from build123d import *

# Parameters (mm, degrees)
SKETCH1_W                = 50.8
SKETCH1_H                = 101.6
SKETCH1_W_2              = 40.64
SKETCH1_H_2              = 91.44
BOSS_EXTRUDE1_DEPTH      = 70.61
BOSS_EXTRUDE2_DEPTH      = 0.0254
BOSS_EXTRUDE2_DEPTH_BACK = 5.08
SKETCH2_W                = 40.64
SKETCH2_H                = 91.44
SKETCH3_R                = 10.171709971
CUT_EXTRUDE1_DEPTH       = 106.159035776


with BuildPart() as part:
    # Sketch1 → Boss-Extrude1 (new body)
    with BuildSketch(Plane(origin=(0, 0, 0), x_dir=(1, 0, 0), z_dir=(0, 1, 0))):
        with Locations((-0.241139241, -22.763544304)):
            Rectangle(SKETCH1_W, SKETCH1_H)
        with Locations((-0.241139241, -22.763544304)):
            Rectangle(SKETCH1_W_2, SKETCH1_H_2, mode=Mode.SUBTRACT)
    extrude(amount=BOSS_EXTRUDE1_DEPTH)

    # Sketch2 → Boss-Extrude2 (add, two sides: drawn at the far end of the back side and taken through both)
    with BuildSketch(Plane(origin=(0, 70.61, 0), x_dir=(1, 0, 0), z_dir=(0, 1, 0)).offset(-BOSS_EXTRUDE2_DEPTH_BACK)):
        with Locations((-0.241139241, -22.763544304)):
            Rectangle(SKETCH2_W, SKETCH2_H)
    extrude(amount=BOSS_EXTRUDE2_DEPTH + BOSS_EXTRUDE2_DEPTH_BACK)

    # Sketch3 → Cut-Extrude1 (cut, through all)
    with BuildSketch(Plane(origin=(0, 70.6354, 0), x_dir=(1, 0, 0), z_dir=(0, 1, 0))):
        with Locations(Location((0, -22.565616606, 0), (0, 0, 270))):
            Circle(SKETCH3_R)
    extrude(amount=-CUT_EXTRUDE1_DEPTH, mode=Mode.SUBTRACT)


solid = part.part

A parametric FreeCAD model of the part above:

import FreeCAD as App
import Part
import Sketcher

V = App.Vector
Q = App.Units.Quantity


def add_polygon(sketch, points):
    """Adds a closed chain of lines whose ends are joined by coincident constraints."""
    first, n = sketch.GeometryCount, len(points)
    for a, b in zip(points, points[1:] + points[:1]):
        sketch.addGeometry(Part.LineSegment(App.Vector(*a, 0), App.Vector(*b, 0)), False)
    for i in range(n):
        sketch.addConstraint(Sketcher.Constraint("Coincident", first + i, 2, first + (i + 1) % n, 1))

doc = App.newDocument("Part")
body = doc.addObject("PartDesign::Body", "Body")

# Sketch on XZ plane
sketch1 = doc.addObject("Sketcher::SketchObject", "Sketch")
body.addObject(sketch1)
sketch1.AttachmentSupport = (doc.XZ_Plane, [""])
sketch1.MapMode = "FlatFace"
add_polygon(sketch1, [(-26, -28), (-26, 74), (25, 74), (25, -28)])  # lines 0-3
add_polygon(sketch1, [(20, 68), (-21, 68), (-21, -23), (20, -23)])  # lines 4-7
sketch1.addConstraint([
    Sketcher.Constraint("Vertical", 0),
    Sketcher.Constraint("Horizontal", 1),
    Sketcher.Constraint("Vertical", 2),
    Sketcher.Constraint("Horizontal", 3),
    Sketcher.Constraint("Horizontal", 4),
    Sketcher.Constraint("Vertical", 5),
    Sketcher.Constraint("Horizontal", 6),
    Sketcher.Constraint("Vertical", 7),
    Sketcher.Constraint("DistanceX", 1, 1, 1, 2, Q("2 in")),
    Sketcher.Constraint("DistanceY", 0, 1, 0, 2, Q("4 in")),
    Sketcher.Constraint("DistanceX", 4, 2, 4, 1, Q("1.6 in")),
    Sketcher.Constraint("DistanceY", 5, 2, 5, 1, Q("3.6 in")),
    Sketcher.Constraint("DistanceX", 0, 2, 4, 2, Q("0.2 in")),
    Sketcher.Constraint("DistanceY", 4, 2, 0, 2, Q("0.2 in")),
    Sketcher.Constraint("DistanceX", 0, 2, -1, 1, 25.641139),
    Sketcher.Constraint("DistanceY", -1, 1, 0, 2, 73.563544),
])
pad1 = doc.addObject("PartDesign::Pad", "Pad")
body.addObject(pad1)
pad1.Profile = sketch1
pad1.Length = 70.61
pad1.Reversed = True

# Sketch on XZ plane
sketch2 = doc.addObject("Sketcher::SketchObject", "Sketch001")
body.addObject(sketch2)
sketch2.AttachmentSupport = (doc.XZ_Plane, [""])
sketch2.MapMode = "FlatFace"
sketch2.AttachmentOffset = App.Placement(V(0, 0, -70.61), App.Rotation())
add_polygon(sketch2, [(-21, -23), (-21, 68), (20, 68), (20, -23)])  # lines 0-3
sketch2.addConstraint([
    Sketcher.Constraint("Vertical", 0),
    Sketcher.Constraint("Horizontal", 1),
    Sketcher.Constraint("Vertical", 2),
    Sketcher.Constraint("Horizontal", 3),
    Sketcher.Constraint("DistanceX", 1, 1, 1, 2, Q("1.6 in")),
    Sketcher.Constraint("DistanceY", 0, 1, 0, 2, Q("3.6 in")),
    Sketcher.Constraint("DistanceX", 0, 2, -1, 1, 20.561139),
    Sketcher.Constraint("DistanceY", -1, 1, 0, 2, 68.483544),
])
pad2 = doc.addObject("PartDesign::Pad", "Pad001")
body.addObject(pad2)
pad2.Profile = sketch2
pad2.Type = "TwoLengths"
pad2.Length = Q("0.001 in")
pad2.Length2 = Q("0.2 in")
pad2.Reversed = True

# Sketch on XZ plane
sketch3 = doc.addObject("Sketcher::SketchObject", "Sketch002")
body.addObject(sketch3)
sketch3.AttachmentSupport = (doc.XZ_Plane, [""])
sketch3.MapMode = "FlatFace"
sketch3.AttachmentOffset = App.Placement(V(0, 0, -70.6354), App.Rotation())
sketch3.addGeometry(Part.Circle(V(0, 23, 0), V(0, 0, 1), 10), False)
sketch3.addConstraint([
    Sketcher.Constraint("PointOnObject", 0, 3, -2),
    Sketcher.Constraint("Diameter", 0, 20.34342),
    Sketcher.Constraint("DistanceY", -1, 1, 0, 3, 22.565617),
])
pocket1 = doc.addObject("PartDesign::Pocket", "Pocket")
body.addObject(pocket1)
pocket1.Profile = sketch3
pocket1.Type = "ThroughAll"
pocket1.Reversed = True

doc.recompute()
